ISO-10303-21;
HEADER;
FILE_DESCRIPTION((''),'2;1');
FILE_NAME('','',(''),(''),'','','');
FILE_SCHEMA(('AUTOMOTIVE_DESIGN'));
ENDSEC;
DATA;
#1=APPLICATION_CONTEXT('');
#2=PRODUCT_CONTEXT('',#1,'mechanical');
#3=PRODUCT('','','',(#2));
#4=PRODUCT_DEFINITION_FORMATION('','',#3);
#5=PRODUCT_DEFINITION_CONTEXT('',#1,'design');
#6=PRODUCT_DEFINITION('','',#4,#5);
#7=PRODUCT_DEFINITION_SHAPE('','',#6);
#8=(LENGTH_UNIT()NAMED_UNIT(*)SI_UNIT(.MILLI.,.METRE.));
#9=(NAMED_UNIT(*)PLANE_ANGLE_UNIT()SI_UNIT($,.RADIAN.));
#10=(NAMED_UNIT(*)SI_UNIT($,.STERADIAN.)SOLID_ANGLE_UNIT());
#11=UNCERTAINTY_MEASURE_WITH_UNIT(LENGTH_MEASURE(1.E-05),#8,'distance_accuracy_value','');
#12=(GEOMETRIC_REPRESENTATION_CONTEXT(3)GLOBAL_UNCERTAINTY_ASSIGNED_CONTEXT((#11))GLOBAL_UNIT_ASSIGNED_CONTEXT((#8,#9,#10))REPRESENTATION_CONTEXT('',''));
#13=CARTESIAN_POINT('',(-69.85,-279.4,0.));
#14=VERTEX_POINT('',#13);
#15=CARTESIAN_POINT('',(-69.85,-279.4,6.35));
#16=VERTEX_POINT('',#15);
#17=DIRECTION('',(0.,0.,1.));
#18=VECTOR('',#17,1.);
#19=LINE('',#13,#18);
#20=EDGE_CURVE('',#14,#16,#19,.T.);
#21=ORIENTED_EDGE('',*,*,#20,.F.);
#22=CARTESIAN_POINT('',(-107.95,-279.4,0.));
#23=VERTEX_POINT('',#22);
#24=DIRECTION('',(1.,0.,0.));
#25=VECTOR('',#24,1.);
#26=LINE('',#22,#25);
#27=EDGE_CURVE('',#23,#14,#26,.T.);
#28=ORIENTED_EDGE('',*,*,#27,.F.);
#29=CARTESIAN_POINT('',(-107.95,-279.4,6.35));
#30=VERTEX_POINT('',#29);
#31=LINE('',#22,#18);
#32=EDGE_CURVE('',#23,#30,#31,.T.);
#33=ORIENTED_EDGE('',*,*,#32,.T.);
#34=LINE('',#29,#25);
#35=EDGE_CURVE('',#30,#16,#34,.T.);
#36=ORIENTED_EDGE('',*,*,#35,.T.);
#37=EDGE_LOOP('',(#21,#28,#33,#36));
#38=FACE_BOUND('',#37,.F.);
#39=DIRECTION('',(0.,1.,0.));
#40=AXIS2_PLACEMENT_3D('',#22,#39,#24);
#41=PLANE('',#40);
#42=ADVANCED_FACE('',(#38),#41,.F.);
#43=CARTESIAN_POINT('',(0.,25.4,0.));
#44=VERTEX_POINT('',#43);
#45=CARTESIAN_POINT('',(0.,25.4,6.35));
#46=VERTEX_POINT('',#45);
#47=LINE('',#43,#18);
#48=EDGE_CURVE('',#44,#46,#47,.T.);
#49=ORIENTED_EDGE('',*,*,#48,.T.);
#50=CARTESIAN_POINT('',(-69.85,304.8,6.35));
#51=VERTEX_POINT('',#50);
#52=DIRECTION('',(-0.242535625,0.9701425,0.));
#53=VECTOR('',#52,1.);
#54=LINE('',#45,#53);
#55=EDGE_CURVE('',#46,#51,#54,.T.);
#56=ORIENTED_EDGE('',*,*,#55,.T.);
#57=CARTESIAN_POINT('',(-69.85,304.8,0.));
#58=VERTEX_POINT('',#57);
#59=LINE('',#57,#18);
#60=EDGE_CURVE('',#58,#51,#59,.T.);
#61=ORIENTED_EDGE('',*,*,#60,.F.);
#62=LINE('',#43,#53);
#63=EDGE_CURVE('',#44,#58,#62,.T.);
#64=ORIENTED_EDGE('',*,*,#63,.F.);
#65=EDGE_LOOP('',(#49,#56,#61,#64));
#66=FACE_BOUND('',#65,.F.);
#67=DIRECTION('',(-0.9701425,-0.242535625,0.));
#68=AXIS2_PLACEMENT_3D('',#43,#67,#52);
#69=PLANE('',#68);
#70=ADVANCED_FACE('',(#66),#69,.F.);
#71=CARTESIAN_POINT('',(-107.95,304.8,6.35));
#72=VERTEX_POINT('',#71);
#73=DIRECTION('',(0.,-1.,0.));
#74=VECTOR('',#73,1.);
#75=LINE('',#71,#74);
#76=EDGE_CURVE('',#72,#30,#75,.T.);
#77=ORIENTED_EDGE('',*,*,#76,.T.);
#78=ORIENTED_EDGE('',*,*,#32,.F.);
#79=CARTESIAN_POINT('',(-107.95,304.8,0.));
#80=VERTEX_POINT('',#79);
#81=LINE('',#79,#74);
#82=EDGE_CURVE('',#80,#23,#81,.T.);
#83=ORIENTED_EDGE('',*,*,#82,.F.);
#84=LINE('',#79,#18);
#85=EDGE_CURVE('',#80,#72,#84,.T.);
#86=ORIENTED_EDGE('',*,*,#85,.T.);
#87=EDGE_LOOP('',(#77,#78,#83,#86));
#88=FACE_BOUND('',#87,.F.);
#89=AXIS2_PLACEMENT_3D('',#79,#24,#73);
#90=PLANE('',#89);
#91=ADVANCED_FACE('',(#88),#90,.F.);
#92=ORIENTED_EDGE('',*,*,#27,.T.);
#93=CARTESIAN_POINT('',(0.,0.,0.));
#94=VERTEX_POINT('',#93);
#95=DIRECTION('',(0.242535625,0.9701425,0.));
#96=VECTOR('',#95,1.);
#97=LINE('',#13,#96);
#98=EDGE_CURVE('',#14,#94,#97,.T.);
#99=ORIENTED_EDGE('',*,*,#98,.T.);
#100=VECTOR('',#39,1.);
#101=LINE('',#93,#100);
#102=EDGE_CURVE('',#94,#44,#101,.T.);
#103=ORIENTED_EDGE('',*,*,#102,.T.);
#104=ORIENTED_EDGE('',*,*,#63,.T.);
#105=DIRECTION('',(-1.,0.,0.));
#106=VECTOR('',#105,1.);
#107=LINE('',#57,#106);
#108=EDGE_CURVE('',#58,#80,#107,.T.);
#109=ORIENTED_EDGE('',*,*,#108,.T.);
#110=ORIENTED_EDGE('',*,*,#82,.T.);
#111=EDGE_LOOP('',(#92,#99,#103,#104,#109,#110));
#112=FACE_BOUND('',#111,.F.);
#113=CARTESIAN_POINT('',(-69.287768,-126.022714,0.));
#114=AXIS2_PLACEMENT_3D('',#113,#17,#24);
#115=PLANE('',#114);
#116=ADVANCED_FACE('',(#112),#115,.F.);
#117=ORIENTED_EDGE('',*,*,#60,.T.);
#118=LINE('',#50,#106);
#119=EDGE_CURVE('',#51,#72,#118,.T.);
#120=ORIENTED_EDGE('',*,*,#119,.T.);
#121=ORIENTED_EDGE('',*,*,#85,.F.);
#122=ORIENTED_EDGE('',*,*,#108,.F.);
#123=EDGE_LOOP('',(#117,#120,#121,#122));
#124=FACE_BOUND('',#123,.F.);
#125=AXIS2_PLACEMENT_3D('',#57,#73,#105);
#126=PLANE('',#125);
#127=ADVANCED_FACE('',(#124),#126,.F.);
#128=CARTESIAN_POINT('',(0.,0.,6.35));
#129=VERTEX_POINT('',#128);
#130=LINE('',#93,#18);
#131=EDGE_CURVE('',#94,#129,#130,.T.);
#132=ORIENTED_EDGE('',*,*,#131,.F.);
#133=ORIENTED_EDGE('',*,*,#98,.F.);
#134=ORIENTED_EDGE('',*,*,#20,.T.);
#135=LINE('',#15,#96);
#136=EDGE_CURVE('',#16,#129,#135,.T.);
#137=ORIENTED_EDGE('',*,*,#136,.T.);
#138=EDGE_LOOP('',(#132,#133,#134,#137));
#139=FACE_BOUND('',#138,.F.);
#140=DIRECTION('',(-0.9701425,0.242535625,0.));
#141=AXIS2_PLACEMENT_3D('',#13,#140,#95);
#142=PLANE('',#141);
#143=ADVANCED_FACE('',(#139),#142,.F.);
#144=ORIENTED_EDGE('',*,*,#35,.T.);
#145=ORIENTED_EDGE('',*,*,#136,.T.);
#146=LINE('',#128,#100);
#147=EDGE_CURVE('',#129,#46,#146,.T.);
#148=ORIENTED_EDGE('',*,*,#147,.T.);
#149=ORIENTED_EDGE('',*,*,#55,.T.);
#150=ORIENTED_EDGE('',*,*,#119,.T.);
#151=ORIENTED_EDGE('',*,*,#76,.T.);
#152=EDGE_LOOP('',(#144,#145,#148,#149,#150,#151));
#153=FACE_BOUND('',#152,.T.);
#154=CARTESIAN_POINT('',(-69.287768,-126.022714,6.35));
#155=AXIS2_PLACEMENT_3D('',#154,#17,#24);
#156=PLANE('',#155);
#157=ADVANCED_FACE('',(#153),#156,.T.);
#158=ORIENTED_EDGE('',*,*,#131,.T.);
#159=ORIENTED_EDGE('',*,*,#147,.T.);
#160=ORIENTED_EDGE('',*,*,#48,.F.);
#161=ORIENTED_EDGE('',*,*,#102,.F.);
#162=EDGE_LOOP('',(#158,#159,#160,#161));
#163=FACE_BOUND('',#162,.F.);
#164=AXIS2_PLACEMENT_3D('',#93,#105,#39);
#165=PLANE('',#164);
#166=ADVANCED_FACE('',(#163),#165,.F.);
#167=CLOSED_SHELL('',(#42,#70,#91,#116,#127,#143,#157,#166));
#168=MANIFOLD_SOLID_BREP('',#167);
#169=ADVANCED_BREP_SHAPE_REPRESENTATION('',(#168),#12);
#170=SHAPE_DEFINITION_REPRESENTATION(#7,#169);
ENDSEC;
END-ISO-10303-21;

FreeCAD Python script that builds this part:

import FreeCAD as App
import Part
import Sketcher

V = App.Vector
Q = App.Units.Quantity

doc = App.newDocument("Part")
params = doc.addObject("Spreadsheet::Sheet", "Params")
for row, (alias, value) in enumerate([
    ("sketch1_height", "1 in"),
    ("sketch1_height2", "23 in"),
    ("sketch1_width", "1.5 in"),
    ("pad1_length", "0.25 in"),
], start=1):
    params.set(f"A{row}", alias)
    params.set(f"B{row}", "=" + value)
    params.setAlias(f"B{row}", alias)

body = doc.addObject("PartDesign::Body", "Body")

sketch1 = body.newObject("Sketcher::SketchObject", "Sketch")
sketch1.AttachmentSupport = (doc.getObject("XY_Plane"), [""])
sketch1.MapMode = "FlatFace"
sketch1.addGeometry([
    Part.LineSegment(V(-69.85, -279.4, 0), V(0, 0, 0)),
    Part.LineSegment(V(0, 0, 0), V(0, 25.4, 0)),
    Part.LineSegment(V(0, 25.4, 0), V(-69.85, 304.8, 0)),
    Part.LineSegment(V(-69.85, 304.8, 0), V(-107.95, 304.8, 0)),
    Part.LineSegment(V(-107.95, 304.8, 0), V(-107.95, -279.4, 0)),
    Part.LineSegment(V(-107.95, -279.4, 0), V(-69.85, -279.4, 0)),
], False)
sketch1.addConstraint([
    Sketcher.Constraint("Coincident", 0, 2, 1, 1),
    Sketcher.Constraint("Coincident", 1, 2, 2, 1),
    Sketcher.Constraint("Coincident", 2, 2, 3, 1),
    Sketcher.Constraint("Coincident", 3, 2, 4, 1),
    Sketcher.Constraint("Coincident", 4, 2, 5, 1),
    Sketcher.Constraint("Coincident", 5, 2, 0, 1),
    Sketcher.Constraint("Vertical", 1),
    Sketcher.Constraint("Horizontal", 3),
    Sketcher.Constraint("Vertical", 4),
    Sketcher.Constraint("Horizontal", 5),
    Sketcher.Constraint("Coincident", 0, 2, -1, 1),
    Sketcher.Constraint("Vertical", 2, 2, 5, 2),
    Sketcher.Constraint("Equal", 0, 2),
    Sketcher.Constraint("DistanceY", 1, 1, 1, 2, Q("1 in")),
    Sketcher.Constraint("DistanceY", 4, 2, 4, 1, Q("23 in")),
    Sketcher.Constraint("DistanceX", 3, 2, 3, 1, Q("1.5 in")),
    Sketcher.Constraint("DistanceX", 2, 2, -1, 1, Q("2.75 in")),
])
sketch1.setExpression("Constraints[13]", "Params.sketch1_height")
sketch1.setExpression("Constraints[14]", "Params.sketch1_height2")
sketch1.setExpression("Constraints[15]", "Params.sketch1_width")
pad1 = body.newObject("PartDesign::Pad", "Pad")
pad1.Profile = sketch1
pad1.setExpression("Length", "Params.pad1_length")

doc.recompute()
